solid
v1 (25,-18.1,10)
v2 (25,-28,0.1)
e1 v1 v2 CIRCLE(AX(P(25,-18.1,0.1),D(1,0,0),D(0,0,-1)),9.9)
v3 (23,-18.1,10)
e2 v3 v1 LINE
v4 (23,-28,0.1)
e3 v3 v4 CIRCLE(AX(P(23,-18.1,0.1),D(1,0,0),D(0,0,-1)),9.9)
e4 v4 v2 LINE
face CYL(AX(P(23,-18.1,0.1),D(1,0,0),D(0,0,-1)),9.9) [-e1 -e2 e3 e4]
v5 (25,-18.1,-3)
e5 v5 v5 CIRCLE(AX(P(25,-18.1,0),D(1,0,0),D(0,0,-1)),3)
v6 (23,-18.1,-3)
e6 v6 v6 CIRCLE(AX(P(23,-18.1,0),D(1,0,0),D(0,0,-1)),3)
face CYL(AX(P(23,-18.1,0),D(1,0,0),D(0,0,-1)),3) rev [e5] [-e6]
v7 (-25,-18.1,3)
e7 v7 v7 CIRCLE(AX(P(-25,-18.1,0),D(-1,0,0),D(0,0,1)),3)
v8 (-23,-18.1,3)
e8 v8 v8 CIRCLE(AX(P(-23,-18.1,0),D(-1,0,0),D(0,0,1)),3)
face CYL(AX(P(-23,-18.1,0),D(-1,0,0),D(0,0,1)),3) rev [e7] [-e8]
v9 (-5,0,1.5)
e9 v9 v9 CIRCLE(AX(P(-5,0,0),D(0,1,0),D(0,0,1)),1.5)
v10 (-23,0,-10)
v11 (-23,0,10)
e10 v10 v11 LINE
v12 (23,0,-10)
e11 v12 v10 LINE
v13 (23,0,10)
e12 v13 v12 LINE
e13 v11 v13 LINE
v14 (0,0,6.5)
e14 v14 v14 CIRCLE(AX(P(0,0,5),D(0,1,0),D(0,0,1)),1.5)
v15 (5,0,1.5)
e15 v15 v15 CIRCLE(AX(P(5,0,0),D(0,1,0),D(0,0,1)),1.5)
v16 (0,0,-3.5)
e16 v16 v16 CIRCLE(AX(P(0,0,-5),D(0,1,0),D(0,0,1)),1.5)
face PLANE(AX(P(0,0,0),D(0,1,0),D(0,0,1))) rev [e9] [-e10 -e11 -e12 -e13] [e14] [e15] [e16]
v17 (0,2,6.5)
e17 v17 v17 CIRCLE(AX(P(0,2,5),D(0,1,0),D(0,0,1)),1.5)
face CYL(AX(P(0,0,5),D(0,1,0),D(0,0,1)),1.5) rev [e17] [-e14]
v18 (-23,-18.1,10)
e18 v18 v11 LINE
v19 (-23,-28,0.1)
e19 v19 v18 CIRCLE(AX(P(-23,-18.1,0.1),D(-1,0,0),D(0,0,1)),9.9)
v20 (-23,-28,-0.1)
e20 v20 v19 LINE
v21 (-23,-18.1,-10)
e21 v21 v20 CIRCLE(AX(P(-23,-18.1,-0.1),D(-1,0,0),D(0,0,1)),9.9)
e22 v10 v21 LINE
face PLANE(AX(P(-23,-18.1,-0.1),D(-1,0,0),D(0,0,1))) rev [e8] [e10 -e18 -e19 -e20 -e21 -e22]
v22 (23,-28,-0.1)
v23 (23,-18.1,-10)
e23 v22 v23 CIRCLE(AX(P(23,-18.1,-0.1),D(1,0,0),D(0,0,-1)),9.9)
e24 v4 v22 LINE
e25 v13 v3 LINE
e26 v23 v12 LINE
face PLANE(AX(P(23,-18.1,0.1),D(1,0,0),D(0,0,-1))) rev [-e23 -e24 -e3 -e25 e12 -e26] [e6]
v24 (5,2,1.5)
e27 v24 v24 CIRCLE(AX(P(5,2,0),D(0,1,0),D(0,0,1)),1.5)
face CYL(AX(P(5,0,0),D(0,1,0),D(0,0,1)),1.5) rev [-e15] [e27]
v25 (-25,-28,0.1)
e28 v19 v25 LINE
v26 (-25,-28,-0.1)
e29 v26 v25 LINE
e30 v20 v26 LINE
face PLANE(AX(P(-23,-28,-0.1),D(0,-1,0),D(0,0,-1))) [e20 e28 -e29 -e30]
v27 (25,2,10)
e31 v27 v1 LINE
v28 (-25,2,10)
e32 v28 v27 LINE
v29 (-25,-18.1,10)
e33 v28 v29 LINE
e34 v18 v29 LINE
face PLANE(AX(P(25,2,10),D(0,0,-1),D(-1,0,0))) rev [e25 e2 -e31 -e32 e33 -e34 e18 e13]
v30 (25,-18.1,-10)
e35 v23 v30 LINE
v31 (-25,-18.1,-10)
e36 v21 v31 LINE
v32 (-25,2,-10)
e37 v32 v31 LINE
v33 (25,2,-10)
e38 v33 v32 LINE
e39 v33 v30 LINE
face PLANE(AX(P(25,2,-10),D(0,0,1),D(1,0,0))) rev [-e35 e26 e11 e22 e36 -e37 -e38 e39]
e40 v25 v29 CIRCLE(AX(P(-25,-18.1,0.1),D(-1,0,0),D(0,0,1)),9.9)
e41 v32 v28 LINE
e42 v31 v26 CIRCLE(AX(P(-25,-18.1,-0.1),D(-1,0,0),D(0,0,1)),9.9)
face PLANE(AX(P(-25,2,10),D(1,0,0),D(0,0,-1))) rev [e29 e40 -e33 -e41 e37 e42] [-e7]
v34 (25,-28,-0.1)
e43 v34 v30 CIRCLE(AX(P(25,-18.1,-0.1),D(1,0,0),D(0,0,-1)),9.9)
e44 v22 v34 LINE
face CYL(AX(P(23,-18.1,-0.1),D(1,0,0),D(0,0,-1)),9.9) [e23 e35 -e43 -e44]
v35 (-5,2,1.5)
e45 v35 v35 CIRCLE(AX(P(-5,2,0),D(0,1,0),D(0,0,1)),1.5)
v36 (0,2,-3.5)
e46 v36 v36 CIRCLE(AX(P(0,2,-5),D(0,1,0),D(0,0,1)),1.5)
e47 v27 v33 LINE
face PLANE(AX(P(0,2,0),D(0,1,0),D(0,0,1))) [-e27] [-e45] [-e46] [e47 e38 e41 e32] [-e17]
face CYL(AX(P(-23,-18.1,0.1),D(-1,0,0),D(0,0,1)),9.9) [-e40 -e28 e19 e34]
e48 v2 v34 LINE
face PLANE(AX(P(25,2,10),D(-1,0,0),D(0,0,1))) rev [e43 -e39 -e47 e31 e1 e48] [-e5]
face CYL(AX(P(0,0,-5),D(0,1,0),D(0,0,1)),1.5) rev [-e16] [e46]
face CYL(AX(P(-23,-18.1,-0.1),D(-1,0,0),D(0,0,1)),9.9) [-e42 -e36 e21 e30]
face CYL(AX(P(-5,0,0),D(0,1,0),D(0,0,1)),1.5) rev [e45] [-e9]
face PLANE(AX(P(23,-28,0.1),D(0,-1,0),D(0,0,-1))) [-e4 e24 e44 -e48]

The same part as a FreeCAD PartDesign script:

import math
import FreeCAD as App
import Part
import Sketcher
Q = App.Units.Quantity


def add_polygon(sketch, points):
    """Adds a closed chain of lines whose ends are joined by coincident constraints."""
    first, n = sketch.GeometryCount, len(points)
    for a, b in zip(points, points[1:] + points[:1]):
        sketch.addGeometry(Part.LineSegment(App.Vector(*a, 0), App.Vector(*b, 0)), False)
    for i in range(n):
        sketch.addConstraint(Sketcher.Constraint("Coincident", first + i, 2, first + (i + 1) % n, 1))

doc = App.newDocument("Part")
body = doc.addObject("PartDesign::Body", "Body")

# Sketch on XZ plane
sketch1 = body.newObject("Sketcher::SketchObject", "Sketch")
sketch1.AttachmentSupport = (doc.getObject("XZ_Plane"), [""])
sketch1.MapMode = "FlatFace"
add_polygon(sketch1, [(-25, -10), (-25, 10), (25, 10), (25, -10)])  # lines 0-3
sketch1.addConstraint([
    Sketcher.Constraint("Vertical", 0),
    Sketcher.Constraint("Horizontal", 1),
    Sketcher.Constraint("Vertical", 2),
    Sketcher.Constraint("Horizontal", 3),
    Sketcher.Constraint("Symmetric", 0, 2, 2, 2, -1, 1),
    Sketcher.Constraint("DistanceX", 1, 1, 1, 2, Q("50 mm")),
    Sketcher.Constraint("DistanceY", 0, 1, 0, 2, Q("20 mm")),
])
pad1 = body.newObject("PartDesign::Pad", "Pad")
pad1.Profile = sketch1
pad1.Length = 2
pad1.Reversed = True

# Sketch on YZ plane
sketch2 = body.newObject("Sketcher::SketchObject", "Sketch001")
sketch2.AttachmentSupport = (doc.getObject("YZ_Plane"), [""])
sketch2.MapMode = "FlatFace"
sketch2.AttachmentOffset = App.Placement(App.Vector(0, 0, -25), App.Rotation())
sketch2.addGeometry([
    Part.LineSegment(App.Vector(2, 10, 0), App.Vector(2, -10, 0)),  # 0
    Part.LineSegment(App.Vector(2, -10, 0), App.Vector(-18.1, -10, 0)),  # 1
    Part.ArcOfCircle(Part.Circle(App.Vector(-18.1, -0.1, 0), App.Vector(0, 0, 1), 9.9), math.radians(180), math.radians(270)),  # 2
    Part.LineSegment(App.Vector(-28, -0.1, 0), App.Vector(-28, 0.1, 0)),  # 3
    Part.ArcOfCircle(Part.Circle(App.Vector(-18.1, 0.1, 0), App.Vector(0, 0, 1), 9.9), math.radians(90), math.radians(180)),  # 4
    Part.LineSegment(App.Vector(-18.1, 10, 0), App.Vector(2, 10, 0)),  # 5
    Part.Circle(App.Vector(-18.1, 0, 0), App.Vector(0, 0, 1), 3),  # 6
], False)
sketch2.addConstraint([
    Sketcher.Constraint("Coincident", 0, 2, 1, 1),
    Sketcher.Constraint("Tangent", 1, 2, 2, 2),
    Sketcher.Constraint("Tangent", 2, 1, 3, 1),
    Sketcher.Constraint("Tangent", 3, 2, 4, 2),
    Sketcher.Constraint("Tangent", 4, 1, 5, 1),
    Sketcher.Constraint("Coincident", 5, 2, 0, 1),
    Sketcher.Constraint("Vertical", 0),
    Sketcher.Constraint("Horizontal", 1),
    Sketcher.Constraint("Vertical", 3),
    Sketcher.Constraint("Horizontal", 5),
    Sketcher.Constraint("Equal", 2, 4),
    Sketcher.Constraint("PointOnObject", 6, 3, -1),
    Sketcher.Constraint("Vertical", 4, 3, 6, 3),
    Sketcher.Constraint("Diameter", 6, Q("6 mm")),
    Sketcher.Constraint("Radius", 2, Q("9.9 mm")),
    Sketcher.Constraint("DistanceY", 0, 2, 0, 1, Q("20 mm")),
    Sketcher.Constraint("DistanceX", 1, 2, 1, 1, Q("20.1 mm")),
    Sketcher.Constraint("DistanceX", -1, 1, 0, 2, Q("2 mm")),
    Sketcher.Constraint("DistanceY", 0, 2, -1, 1, Q("10 mm")),
])
pad2 = body.newObject("PartDesign::Pad", "Pad001")
pad2.Profile = sketch2
pad2.Length = 2

# Sketch on YZ plane
sketch3 = body.newObject("Sketcher::SketchObject", "Sketch002")
sketch3.AttachmentSupport = (doc.getObject("YZ_Plane"), [""])
sketch3.MapMode = "FlatFace"
sketch3.AttachmentOffset = App.Placement(App.Vector(0, 0, 23), App.Rotation())
sketch3.addGeometry([
    Part.LineSegment(App.Vector(2, -10, 0), App.Vector(2, 10, 0)),  # 0
    Part.LineSegment(App.Vector(2, 10, 0), App.Vector(-18.1, 10, 0)),  # 1
    Part.ArcOfCircle(Part.Circle(App.Vector(-18.1, 0.1, 0), App.Vector(0, 0, 1), 9.9), math.radians(90), math.radians(180)),  # 2
    Part.LineSegment(App.Vector(-28, 0.1, 0), App.Vector(-28, -0.1, 0)),  # 3
    Part.ArcOfCircle(Part.Circle(App.Vector(-18.1, -0.1, 0), App.Vector(0, 0, 1), 9.9), math.radians(180), math.radians(270)),  # 4
    Part.LineSegment(App.Vector(-18.1, -10, 0), App.Vector(2, -10, 0)),  # 5
    Part.Circle(App.Vector(-18.1, 0, 0), App.Vector(0, 0, 1), 3),  # 6
], False)
sketch3.addConstraint([
    Sketcher.Constraint("Coincident", 0, 2, 1, 1),
    Sketcher.Constraint("Tangent", 1, 2, 2, 1),
    Sketcher.Constraint("Tangent", 2, 2, 3, 1),
    Sketcher.Constraint("Tangent", 3, 2, 4, 1),
    Sketcher.Constraint("Tangent", 4, 2, 5, 1),
    Sketcher.Constraint("Coincident", 5, 2, 0, 1),
    Sketcher.Constraint("Vertical", 0),
    Sketcher.Constraint("Horizontal", 1),
    Sketcher.Constraint("Vertical", 3),
    Sketcher.Constraint("Horizontal", 5),
    Sketcher.Constraint("Equal", 2, 4),
    Sketcher.Constraint("PointOnObject", 6, 3, -1),
    Sketcher.Constraint("Vertical", 4, 3, 6, 3),
    Sketcher.Constraint("Diameter", 6, Q("6 mm")),
    Sketcher.Constraint("Radius", 2, Q("9.9 mm")),
    Sketcher.Constraint("DistanceY", 0, 1, 0, 2, Q("20 mm")),
    Sketcher.Constraint("DistanceX", 1, 2, 1, 1, Q("20.1 mm")),
    Sketcher.Constraint("DistanceX", -1, 1, 0, 2, Q("2 mm")),
    Sketcher.Constraint("DistanceY", -1, 1, 0, 2, Q("10 mm")),
])
pad3 = body.newObject("PartDesign::Pad", "Pad002")
pad3.Profile = sketch3
pad3.Length = 2

# Sketch on XZ plane
sketch4 = body.newObject("Sketcher::SketchObject", "Sketch003")
sketch4.AttachmentSupport = (doc.getObject("XZ_Plane"), [""])
sketch4.MapMode = "FlatFace"
sketch4.AttachmentOffset = App.Placement(App.Vector(0, 0, -2), App.Rotation())
sketch4.addGeometry([
    Part.Circle(App.Vector(0, -5, 0), App.Vector(0, 0, 1), 1.5),
    Part.Circle(App.Vector(5, 0, 0), App.Vector(0, 0, 1), 1.5),
    Part.Circle(App.Vector(0, 5, 0), App.Vector(0, 0, 1), 1.5),
    Part.Circle(App.Vector(-5, 0, 0), App.Vector(0, 0, 1), 1.5),
], False)
sketch4.addConstraint([
    Sketcher.Constraint("Equal", 0, 1),
    Sketcher.Constraint("Equal", 1, 2),
    Sketcher.Constraint("Equal", 2, 3),
    Sketcher.Constraint("Symmetric", 0, 3, 2, 3, -1, 1),
    Sketcher.Constraint("Symmetric", 1, 3, 3, 3, -1, 1),
    Sketcher.Constraint("PointOnObject", 0, 3, -2),
    Sketcher.Constraint("PointOnObject", 1, 3, -1),
    Sketcher.Constraint("Diameter", 0, Q("3 mm")),
    Sketcher.Constraint("DistanceY", 0, 3, -1, 1, Q("5 mm")),
    Sketcher.Constraint("DistanceX", -1, 1, 1, 3, Q("5 mm")),
])
pocket1 = body.newObject("PartDesign::Pocket", "Pocket")
pocket1.Profile = sketch4
pocket1.Length = 2
pocket1.Reversed = True

doc.recompute()
